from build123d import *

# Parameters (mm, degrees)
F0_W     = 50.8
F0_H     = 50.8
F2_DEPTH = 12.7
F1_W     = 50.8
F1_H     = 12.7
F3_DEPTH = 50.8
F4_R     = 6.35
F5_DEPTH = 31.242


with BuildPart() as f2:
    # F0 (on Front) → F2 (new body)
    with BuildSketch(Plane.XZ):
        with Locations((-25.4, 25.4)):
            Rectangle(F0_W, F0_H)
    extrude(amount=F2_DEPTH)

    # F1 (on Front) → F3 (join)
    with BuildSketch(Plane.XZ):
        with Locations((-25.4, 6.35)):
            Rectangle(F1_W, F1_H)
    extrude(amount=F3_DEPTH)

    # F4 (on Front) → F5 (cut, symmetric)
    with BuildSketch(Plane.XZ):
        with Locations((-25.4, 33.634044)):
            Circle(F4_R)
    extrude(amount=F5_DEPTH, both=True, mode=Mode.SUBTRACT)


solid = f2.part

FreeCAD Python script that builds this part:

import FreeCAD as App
import Part
import Sketcher
Q = App.Units.Quantity


def add_polygon(sketch, points):
    """Adds a closed chain of lines whose ends are joined by coincident constraints."""
    first, n = sketch.GeometryCount, len(points)
    for a, b in zip(points, points[1:] + points[:1]):
        sketch.addGeometry(Part.LineSegment(App.Vector(*a, 0), App.Vector(*b, 0)), False)
    for i in range(n):
        sketch.addConstraint(Sketcher.Constraint("Coincident", first + i, 2, first + (i + 1) % n, 1))

doc = App.newDocument("Part")
body = doc.addObject("PartDesign::Body", "Body")

# Sketch on XZ plane
sketch1 = doc.addObject("Sketcher::SketchObject", "Sketch")
body.addObject(sketch1)
sketch1.AttachmentSupport = (doc.XZ_Plane, [""])
sketch1.MapMode = "FlatFace"
add_polygon(sketch1, [(-51, 51), (-51, 0), (0, 0), (0, 51)])  # lines 0-3
sketch1.addConstraint([
    Sketcher.Constraint("Vertical", 0),
    Sketcher.Constraint("Horizontal", 1),
    Sketcher.Constraint("Vertical", 2),
    Sketcher.Constraint("Horizontal", 3),
    Sketcher.Constraint("Coincident", 1, 2, -1, 1),
    Sketcher.Constraint("Equal", 3, 0),
    Sketcher.Constraint("DistanceX", 1, 1, 1, 2, Q("2 in")),
])
pad1 = doc.addObject("PartDesign::Pad", "Pad")
body.addObject(pad1)
pad1.Profile = sketch1
pad1.Length = Q("0.5 in")

# Sketch on XZ plane
sketch2 = doc.addObject("Sketcher::SketchObject", "Sketch001")
body.addObject(sketch2)
sketch2.AttachmentSupport = (doc.XZ_Plane, [""])
sketch2.MapMode = "FlatFace"
add_polygon(sketch2, [(-51, 13), (-51, 0), (0, 0), (0, 13)])  # lines 0-3
sketch2.addConstraint([
    Sketcher.Constraint("Vertical", 0),
    Sketcher.Constraint("Horizontal", 1),
    Sketcher.Constraint("Vertical", 2),
    Sketcher.Constraint("Horizontal", 3),
    Sketcher.Constraint("Coincident", 1, 2, -1, 1),
    Sketcher.Constraint("DistanceX", 1, 1, 1, 2, Q("2 in")),
    Sketcher.Constraint("DistanceY", 0, 2, 0, 1, Q("0.5 in")),
])
pad2 = doc.addObject("PartDesign::Pad", "Pad001")
body.addObject(pad2)
pad2.Profile = sketch2
pad2.Length = Q("2 in")

# Sketch on XZ plane
sketch3 = doc.addObject("Sketcher::SketchObject", "Sketch002")
body.addObject(sketch3)
sketch3.AttachmentSupport = (doc.XZ_Plane, [""])
sketch3.MapMode = "FlatFace"
sketch3.addGeometry(Part.Circle(App.Vector(-25, 34, 0), App.Vector(0, 0, 1), 6), False)
sketch3.addConstraint([
    Sketcher.Constraint("Diameter", 0, Q("0.5 in")),
    Sketcher.Constraint("DistanceX", 0, 3, -1, 1, Q("1 in")),
    Sketcher.Constraint("DistanceY", -1, 1, 0, 3, 33.634044),
])
pocket1 = doc.addObject("PartDesign::Pocket", "Pocket")
body.addObject(pocket1)
pocket1.Profile = sketch3
pocket1.Length = Q("2.46 in")
pocket1.Midplane = True

doc.recompute()
